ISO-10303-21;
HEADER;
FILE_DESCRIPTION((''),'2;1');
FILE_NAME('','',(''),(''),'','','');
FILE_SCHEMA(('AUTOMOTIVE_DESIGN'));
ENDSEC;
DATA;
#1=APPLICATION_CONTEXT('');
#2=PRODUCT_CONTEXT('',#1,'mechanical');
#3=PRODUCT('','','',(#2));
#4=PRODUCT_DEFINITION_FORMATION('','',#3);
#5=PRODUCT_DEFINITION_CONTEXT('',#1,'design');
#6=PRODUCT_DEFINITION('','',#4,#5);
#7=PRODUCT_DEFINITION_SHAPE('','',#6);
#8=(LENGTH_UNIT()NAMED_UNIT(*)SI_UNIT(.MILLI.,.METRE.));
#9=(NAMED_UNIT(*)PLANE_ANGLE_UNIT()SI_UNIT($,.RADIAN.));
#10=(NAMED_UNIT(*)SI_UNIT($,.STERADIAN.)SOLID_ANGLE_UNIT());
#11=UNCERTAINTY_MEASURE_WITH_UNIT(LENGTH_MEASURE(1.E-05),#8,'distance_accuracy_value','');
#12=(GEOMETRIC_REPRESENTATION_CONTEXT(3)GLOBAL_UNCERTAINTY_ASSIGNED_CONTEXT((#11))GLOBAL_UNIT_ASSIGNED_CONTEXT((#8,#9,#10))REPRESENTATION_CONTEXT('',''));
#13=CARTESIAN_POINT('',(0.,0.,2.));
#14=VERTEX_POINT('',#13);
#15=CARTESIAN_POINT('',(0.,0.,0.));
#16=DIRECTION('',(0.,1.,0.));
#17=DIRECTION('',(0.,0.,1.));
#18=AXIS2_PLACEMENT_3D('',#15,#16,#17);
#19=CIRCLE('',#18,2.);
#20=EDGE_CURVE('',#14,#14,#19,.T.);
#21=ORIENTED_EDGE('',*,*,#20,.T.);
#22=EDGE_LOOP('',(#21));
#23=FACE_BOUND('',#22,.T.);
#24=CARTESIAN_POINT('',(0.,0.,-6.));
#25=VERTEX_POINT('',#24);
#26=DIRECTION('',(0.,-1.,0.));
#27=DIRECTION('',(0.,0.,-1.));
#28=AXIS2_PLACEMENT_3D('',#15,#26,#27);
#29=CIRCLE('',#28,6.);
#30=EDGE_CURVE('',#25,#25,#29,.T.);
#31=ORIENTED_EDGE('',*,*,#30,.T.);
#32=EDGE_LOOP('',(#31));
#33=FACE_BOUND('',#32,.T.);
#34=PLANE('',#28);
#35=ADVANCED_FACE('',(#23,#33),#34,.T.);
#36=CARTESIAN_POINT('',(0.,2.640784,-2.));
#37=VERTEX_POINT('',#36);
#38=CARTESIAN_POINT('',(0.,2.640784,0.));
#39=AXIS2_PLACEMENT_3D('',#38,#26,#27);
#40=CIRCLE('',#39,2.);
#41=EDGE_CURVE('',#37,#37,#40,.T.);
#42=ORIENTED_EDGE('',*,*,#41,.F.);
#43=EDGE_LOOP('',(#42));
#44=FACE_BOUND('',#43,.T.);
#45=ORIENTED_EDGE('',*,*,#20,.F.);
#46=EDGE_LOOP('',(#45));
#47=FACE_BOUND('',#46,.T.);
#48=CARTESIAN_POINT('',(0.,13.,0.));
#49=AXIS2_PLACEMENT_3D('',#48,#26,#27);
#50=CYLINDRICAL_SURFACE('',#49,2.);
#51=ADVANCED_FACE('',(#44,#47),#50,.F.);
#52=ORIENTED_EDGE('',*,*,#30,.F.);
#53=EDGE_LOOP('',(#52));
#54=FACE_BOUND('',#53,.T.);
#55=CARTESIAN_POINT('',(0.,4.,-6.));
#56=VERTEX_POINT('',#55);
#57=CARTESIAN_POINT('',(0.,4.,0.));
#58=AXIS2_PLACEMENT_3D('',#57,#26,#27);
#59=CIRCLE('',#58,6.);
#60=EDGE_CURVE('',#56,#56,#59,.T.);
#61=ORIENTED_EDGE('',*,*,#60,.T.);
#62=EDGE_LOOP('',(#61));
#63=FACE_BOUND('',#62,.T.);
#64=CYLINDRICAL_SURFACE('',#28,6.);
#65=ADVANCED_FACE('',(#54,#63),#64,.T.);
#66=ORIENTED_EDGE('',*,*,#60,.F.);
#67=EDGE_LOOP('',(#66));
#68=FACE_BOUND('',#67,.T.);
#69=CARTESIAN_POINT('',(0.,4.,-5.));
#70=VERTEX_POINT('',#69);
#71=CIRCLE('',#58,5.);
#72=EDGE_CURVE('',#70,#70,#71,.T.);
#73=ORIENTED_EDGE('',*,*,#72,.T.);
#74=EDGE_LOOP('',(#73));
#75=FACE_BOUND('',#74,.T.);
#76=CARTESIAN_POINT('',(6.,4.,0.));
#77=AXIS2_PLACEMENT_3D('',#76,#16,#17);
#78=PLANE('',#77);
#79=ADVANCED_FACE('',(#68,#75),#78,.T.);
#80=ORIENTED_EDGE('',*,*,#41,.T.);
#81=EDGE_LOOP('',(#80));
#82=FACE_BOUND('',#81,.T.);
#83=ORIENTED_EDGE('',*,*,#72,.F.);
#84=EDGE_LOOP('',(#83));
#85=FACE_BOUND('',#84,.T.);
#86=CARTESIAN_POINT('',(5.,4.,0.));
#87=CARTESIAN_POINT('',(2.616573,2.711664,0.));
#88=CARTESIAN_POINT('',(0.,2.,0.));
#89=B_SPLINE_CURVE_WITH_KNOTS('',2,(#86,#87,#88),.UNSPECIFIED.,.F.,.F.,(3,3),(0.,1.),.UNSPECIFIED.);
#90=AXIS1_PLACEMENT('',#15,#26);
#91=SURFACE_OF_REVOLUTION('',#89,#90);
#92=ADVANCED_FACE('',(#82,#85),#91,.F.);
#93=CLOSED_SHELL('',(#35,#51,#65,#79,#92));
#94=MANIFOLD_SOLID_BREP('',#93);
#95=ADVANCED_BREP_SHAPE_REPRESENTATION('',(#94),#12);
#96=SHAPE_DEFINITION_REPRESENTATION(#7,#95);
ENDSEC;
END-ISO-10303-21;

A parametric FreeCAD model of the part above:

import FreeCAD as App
import Part
import Sketcher

V = App.Vector
Q = App.Units.Quantity

doc = App.newDocument("Part")
params = doc.addObject("Spreadsheet::Sheet", "Params")
for row, (alias, value) in enumerate([
    ("sketch1_width", "6 mm"),
    ("revolution_angle", "360 deg"),
    ("sketch2_diameter", "4 mm"),
    ("pocket1_length", "13 mm"),
], start=1):
    params.set(f"A{row}", alias)
    params.set(f"B{row}", "=" + value)
    params.setAlias(f"B{row}", alias)

body = doc.addObject("PartDesign::Body", "Body")

# Sketch on XY plane
sketch1 = body.newObject("Sketcher::SketchObject", "Sketch")
sketch1.AttachmentSupport = (doc.getObject("XY_Plane"), [""])
sketch1.MapMode = "FlatFace"
sketch1.addGeometry([
    Part.LineSegment(V(0, 0, 0), V(6, 0, 0)),  # 0
    Part.LineSegment(V(6, 0, 0), V(6, 4, 0)),  # 1
    Part.LineSegment(V(6, 4, 0), V(5, 4, 0)),  # 2
    Part.BSplineCurve([V(0, 2, 0), V(2.616573, 2.711664, 0), V(5, 4, 0)], [3, 3], [0, 1], False, 2, [1, 1, 1], False),  # 3
    Part.LineSegment(V(0, 2, 0), V(0, 0, 0)),  # 4
], False)
sketch1.addConstraint([
    Sketcher.Constraint("Block", 3),
    Sketcher.Constraint("Coincident", 0, 2, 1, 1),
    Sketcher.Constraint("Coincident", 1, 2, 2, 1),
    Sketcher.Constraint("Coincident", 2, 2, 3, 2),
    Sketcher.Constraint("Coincident", 3, 1, 4, 1),
    Sketcher.Constraint("Coincident", 4, 2, 0, 1),
    Sketcher.Constraint("Horizontal", 0),
    Sketcher.Constraint("Vertical", 1),
    Sketcher.Constraint("Horizontal", 2),
    Sketcher.Constraint("Vertical", 4),
    Sketcher.Constraint("PointOnObject", 0, 2, -1),
    Sketcher.Constraint("DistanceX", 0, 1, 0, 2, Q("6 mm")),
])
sketch1.setExpression("Constraints[11]", "Params.sketch1_width")
revolution = body.newObject("PartDesign::Revolution", "Revolution")
revolution.Profile = sketch1
revolution.ReferenceAxis = (sketch1, ["V_Axis"])
revolution.setExpression("Angle", "Params.revolution_angle")

# Sketch on XZ plane
sketch2 = body.newObject("Sketcher::SketchObject", "Sketch001")
sketch2.AttachmentSupport = (doc.getObject("XZ_Plane"), [""])
sketch2.MapMode = "FlatFace"
sketch2.addGeometry(Part.Circle(V(0, 0, 0), V(0, 0, 1), 2), False)
sketch2.addConstraint([
    Sketcher.Constraint("Coincident", 0, 3, -1, 1),
    Sketcher.Constraint("Diameter", 0, Q("4 mm")),
])
sketch2.setExpression("Constraints[1]", "Params.sketch2_diameter")
pocket1 = body.newObject("PartDesign::Pocket", "Pocket")
pocket1.Profile = sketch2
pocket1.setExpression("Length", "Params.pocket1_length")

doc.recompute()
